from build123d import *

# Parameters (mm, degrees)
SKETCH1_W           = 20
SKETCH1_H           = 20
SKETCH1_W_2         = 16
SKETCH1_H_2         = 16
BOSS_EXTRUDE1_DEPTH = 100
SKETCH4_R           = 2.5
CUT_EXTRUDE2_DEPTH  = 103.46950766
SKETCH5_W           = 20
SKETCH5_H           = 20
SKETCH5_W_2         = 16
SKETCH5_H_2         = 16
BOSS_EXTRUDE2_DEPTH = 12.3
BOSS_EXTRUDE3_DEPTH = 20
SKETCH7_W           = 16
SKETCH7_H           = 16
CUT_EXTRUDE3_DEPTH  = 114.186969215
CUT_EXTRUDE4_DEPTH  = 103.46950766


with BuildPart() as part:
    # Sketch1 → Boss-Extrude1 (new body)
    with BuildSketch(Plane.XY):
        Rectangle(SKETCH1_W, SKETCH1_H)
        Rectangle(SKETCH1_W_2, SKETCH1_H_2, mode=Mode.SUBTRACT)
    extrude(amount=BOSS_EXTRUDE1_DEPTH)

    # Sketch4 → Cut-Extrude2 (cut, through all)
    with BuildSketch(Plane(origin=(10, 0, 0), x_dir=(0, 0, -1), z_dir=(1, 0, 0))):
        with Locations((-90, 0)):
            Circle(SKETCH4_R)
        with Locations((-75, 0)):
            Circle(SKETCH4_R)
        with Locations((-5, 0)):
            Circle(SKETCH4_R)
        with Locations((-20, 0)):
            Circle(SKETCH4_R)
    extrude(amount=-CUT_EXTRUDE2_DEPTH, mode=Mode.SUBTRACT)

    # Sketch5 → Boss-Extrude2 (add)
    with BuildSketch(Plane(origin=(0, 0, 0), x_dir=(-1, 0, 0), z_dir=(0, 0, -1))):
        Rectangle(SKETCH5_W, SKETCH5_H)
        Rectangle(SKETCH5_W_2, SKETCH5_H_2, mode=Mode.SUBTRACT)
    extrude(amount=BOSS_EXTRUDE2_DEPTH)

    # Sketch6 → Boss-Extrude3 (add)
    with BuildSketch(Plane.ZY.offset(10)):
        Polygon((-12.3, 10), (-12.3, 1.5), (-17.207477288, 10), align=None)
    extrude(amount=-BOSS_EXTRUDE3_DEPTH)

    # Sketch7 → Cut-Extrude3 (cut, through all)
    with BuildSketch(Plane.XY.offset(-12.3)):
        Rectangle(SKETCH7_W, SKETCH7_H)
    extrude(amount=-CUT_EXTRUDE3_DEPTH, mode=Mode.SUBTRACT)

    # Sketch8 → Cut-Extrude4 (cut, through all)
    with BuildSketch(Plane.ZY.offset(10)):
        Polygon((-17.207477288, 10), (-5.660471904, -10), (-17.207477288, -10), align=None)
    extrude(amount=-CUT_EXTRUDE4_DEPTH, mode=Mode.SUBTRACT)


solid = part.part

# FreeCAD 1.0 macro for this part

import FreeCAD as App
import Part
import Sketcher
from FreeCAD import Vector
Q = App.Units.Quantity


def add_polygon(sketch, points):
    """Adds a closed chain of lines whose ends are joined by coincident constraints."""
    first, n = sketch.GeometryCount, len(points)
    for a, b in zip(points, points[1:] + points[:1]):
        sketch.addGeometry(Part.LineSegment(App.Vector(*a, 0), App.Vector(*b, 0)), False)
    for i in range(n):
        sketch.addConstraint(Sketcher.Constraint("Coincident", first + i, 2, first + (i + 1) % n, 1))

doc = App.newDocument("Part")
body = doc.addObject("PartDesign::Body", "Body")

sketch1 = body.newObject("Sketcher::SketchObject", "Sketch")
sketch1.AttachmentSupport = (doc.getObject("XY_Plane"), [""])
sketch1.MapMode = "FlatFace"
add_polygon(sketch1, [(-10, 10), (-10, -10), (10, -10), (10, 10)])
add_polygon(sketch1, [(8, -8), (-8, -8), (-8, 8), (8, 8)])
sketch1.addConstraint(Sketcher.Constraint("Vertical", 0))
sketch1.addConstraint(Sketcher.Constraint("Horizontal", 1))
sketch1.addConstraint(Sketcher.Constraint("Vertical", 2))
sketch1.addConstraint(Sketcher.Constraint("Horizontal", 3))
sketch1.addConstraint(Sketcher.Constraint("Horizontal", 4))
sketch1.addConstraint(Sketcher.Constraint("Vertical", 5))
sketch1.addConstraint(Sketcher.Constraint("Horizontal", 6))
sketch1.addConstraint(Sketcher.Constraint("Vertical", 7))
sketch1.addConstraint(Sketcher.Constraint("Symmetric", 0, 2, 2, 2, -1, 1))
sketch1.addConstraint(Sketcher.Constraint("Symmetric", 4, 2, 6, 2, -1, 1))
sketch1.addConstraint(Sketcher.Constraint("Equal", 3, 0))
sketch1.addConstraint(Sketcher.Constraint("Equal", 6, 5))
sketch1.addConstraint(Sketcher.Constraint("DistanceX", 1, 1, 1, 2, Q("20 mm")))
sketch1.addConstraint(Sketcher.Constraint("DistanceX", 4, 2, 4, 1, Q("16 mm")))
pad1 = body.newObject("PartDesign::Pad", "Pad")
pad1.Profile = sketch1
pad1.Length = 100

sketch2 = body.newObject("Sketcher::SketchObject", "Sketch001")
sketch2.AttachmentSupport = (doc.getObject("YZ_Plane"), [""])
sketch2.MapMode = "FlatFace"
sketch2.AttachmentOffset = App.Placement(Vector(0, 0, 10), App.Rotation())
sketch2.addGeometry(Part.Circle(Vector(0, 90, 0), Vector(0, 0, 1), 2.5), False)
sketch2.addGeometry(Part.Circle(Vector(0, 75, 0), Vector(0, 0, 1), 2.5), False)
sketch2.addGeometry(Part.Circle(Vector(0, 5, 0), Vector(0, 0, 1), 2.5), False)
sketch2.addGeometry(Part.Circle(Vector(0, 20, 0), Vector(0, 0, 1), 2.5), False)
sketch2.addConstraint(Sketcher.Constraint("Equal", 0, 1))
sketch2.addConstraint(Sketcher.Constraint("Equal", 1, 2))
sketch2.addConstraint(Sketcher.Constraint("Equal", 2, 3))
sketch2.addConstraint(Sketcher.Constraint("PointOnObject", 0, 3, -2))
sketch2.addConstraint(Sketcher.Constraint("PointOnObject", 1, 3, -2))
sketch2.addConstraint(Sketcher.Constraint("PointOnObject", 2, 3, -2))
sketch2.addConstraint(Sketcher.Constraint("PointOnObject", 3, 3, -2))
sketch2.addConstraint(Sketcher.Constraint("Diameter", 0, Q("5 mm")))
sketch2.addConstraint(Sketcher.Constraint("DistanceY", -1, 1, 0, 3, Q("90 mm")))
sketch2.addConstraint(Sketcher.Constraint("DistanceY", -1, 1, 1, 3, Q("75 mm")))
sketch2.addConstraint(Sketcher.Constraint("DistanceY", -1, 1, 2, 3, Q("5 mm")))
sketch2.addConstraint(Sketcher.Constraint("DistanceY", -1, 1, 3, 3, Q("20 mm")))
pocket1 = body.newObject("PartDesign::Pocket", "Pocket")
pocket1.Profile = sketch2
pocket1.Type = "ThroughAll"

sketch3 = body.newObject("Sketcher::SketchObject", "Sketch002")
sketch3.AttachmentSupport = (doc.getObject("XY_Plane"), [""])
sketch3.MapMode = "FlatFace"
add_polygon(sketch3, [(10, 10), (10, -10), (-10, -10), (-10, 10)])
add_polygon(sketch3, [(-8, -8), (8, -8), (8, 8), (-8, 8)])
sketch3.addConstraint(Sketcher.Constraint("Vertical", 0))
sketch3.addConstraint(Sketcher.Constraint("Horizontal", 1))
sketch3.addConstraint(Sketcher.Constraint("Vertical", 2))
sketch3.addConstraint(Sketcher.Constraint("Horizontal", 3))
sketch3.addConstraint(Sketcher.Constraint("Horizontal", 4))
sketch3.addConstraint(Sketcher.Constraint("Vertical", 5))
sketch3.addConstraint(Sketcher.Constraint("Horizontal", 6))
sketch3.addConstraint(Sketcher.Constraint("Vertical", 7))
sketch3.addConstraint(Sketcher.Constraint("Symmetric", 0, 2, 2, 2, -1, 1))
sketch3.addConstraint(Sketcher.Constraint("Symmetric", 4, 2, 6, 2, -1, 1))
sketch3.addConstraint(Sketcher.Constraint("Equal", 3, 0))
sketch3.addConstraint(Sketcher.Constraint("Equal", 6, 5))
sketch3.addConstraint(Sketcher.Constraint("DistanceX", 1, 2, 1, 1, Q("20 mm")))
sketch3.addConstraint(Sketcher.Constraint("DistanceX", 4, 1, 4, 2, Q("16 mm")))
pad2 = body.newObject("PartDesign::Pad", "Pad001")
pad2.Profile = sketch3
pad2.Length = 12.3
pad2.Reversed = True

sketch4 = body.newObject("Sketcher::SketchObject", "Sketch003")
sketch4.AttachmentSupport = (doc.getObject("YZ_Plane"), [""])
sketch4.MapMode = "FlatFace"
sketch4.AttachmentOffset = App.Placement(Vector(0, 0, -10), App.Rotation())
add_polygon(sketch4, [(1.5, -12.3), (10, -12.3), (10, -17.2)])
sketch4.addConstraint(Sketcher.Constraint("Horizontal", 0))
sketch4.addConstraint(Sketcher.Constraint("Vertical", 1))
sketch4.addConstraint(Sketcher.Constraint("Angle", 2, Q("150 deg")))
sketch4.addConstraint(Sketcher.Constraint("DistanceX", 0, 1, 0, 2, Q("8.5 mm")))
sketch4.addConstraint(Sketcher.Constraint("DistanceX", -1, 1, 0, 2, Q("10 mm")))
sketch4.addConstraint(Sketcher.Constraint("DistanceY", 0, 2, -1, 1, Q("12.3 mm")))
pad3 = body.newObject("PartDesign::Pad", "Pad002")
pad3.Profile = sketch4
pad3.Length = 20

sketch5 = body.newObject("Sketcher::SketchObject", "Sketch004")
sketch5.AttachmentSupport = (doc.getObject("XY_Plane"), [""])
sketch5.MapMode = "FlatFace"
sketch5.AttachmentOffset = App.Placement(Vector(0, 0, -12.3), App.Rotation())
add_polygon(sketch5, [(-8, 8), (-8, -8), (8, -8), (8, 8)])
sketch5.addConstraint(Sketcher.Constraint("Vertical", 0))
sketch5.addConstraint(Sketcher.Constraint("Horizontal", 1))
sketch5.addConstraint(Sketcher.Constraint("Vertical", 2))
sketch5.addConstraint(Sketcher.Constraint("Horizontal", 3))
sketch5.addConstraint(Sketcher.Constraint("Symmetric", 0, 2, 2, 2, -1, 1))
sketch5.addConstraint(Sketcher.Constraint("Equal", 3, 0))
sketch5.addConstraint(Sketcher.Constraint("DistanceX", 1, 1, 1, 2, Q("16 mm")))
pocket2 = body.newObject("PartDesign::Pocket", "Pocket001")
pocket2.Profile = sketch5
pocket2.Type = "ThroughAll"

sketch6 = body.newObject("Sketcher::SketchObject", "Sketch005")
sketch6.AttachmentSupport = (doc.getObject("YZ_Plane"), [""])
sketch6.MapMode = "FlatFace"
sketch6.AttachmentOffset = App.Placement(Vector(0, 0, -10), App.Rotation())
add_polygon(sketch6, [(-10, -6), (10, -17), (-10, -17)])
sketch6.addConstraint(Sketcher.Constraint("Horizontal", 1))
sketch6.addConstraint(Sketcher.Constraint("Vertical", 2))
sketch6.addConstraint(Sketcher.Constraint("DistanceX", 1, 2, 1, 1, Q("20 mm")))
sketch6.addConstraint(Sketcher.Constraint("Angle", 0, Q("-30 deg")))
sketch6.addConstraint(Sketcher.Constraint("DistanceX", -1, 1, 0, 2, Q("10 mm")))
sketch6.addConstraint(Sketcher.Constraint("DistanceY", 2, 2, -1, 1, Q("5.660472 mm")))
pocket3 = body.newObject("PartDesign::Pocket", "Pocket002")
pocket3.Profile = sketch6
pocket3.Type = "ThroughAll"
pocket3.Reversed = True

doc.recompute()
